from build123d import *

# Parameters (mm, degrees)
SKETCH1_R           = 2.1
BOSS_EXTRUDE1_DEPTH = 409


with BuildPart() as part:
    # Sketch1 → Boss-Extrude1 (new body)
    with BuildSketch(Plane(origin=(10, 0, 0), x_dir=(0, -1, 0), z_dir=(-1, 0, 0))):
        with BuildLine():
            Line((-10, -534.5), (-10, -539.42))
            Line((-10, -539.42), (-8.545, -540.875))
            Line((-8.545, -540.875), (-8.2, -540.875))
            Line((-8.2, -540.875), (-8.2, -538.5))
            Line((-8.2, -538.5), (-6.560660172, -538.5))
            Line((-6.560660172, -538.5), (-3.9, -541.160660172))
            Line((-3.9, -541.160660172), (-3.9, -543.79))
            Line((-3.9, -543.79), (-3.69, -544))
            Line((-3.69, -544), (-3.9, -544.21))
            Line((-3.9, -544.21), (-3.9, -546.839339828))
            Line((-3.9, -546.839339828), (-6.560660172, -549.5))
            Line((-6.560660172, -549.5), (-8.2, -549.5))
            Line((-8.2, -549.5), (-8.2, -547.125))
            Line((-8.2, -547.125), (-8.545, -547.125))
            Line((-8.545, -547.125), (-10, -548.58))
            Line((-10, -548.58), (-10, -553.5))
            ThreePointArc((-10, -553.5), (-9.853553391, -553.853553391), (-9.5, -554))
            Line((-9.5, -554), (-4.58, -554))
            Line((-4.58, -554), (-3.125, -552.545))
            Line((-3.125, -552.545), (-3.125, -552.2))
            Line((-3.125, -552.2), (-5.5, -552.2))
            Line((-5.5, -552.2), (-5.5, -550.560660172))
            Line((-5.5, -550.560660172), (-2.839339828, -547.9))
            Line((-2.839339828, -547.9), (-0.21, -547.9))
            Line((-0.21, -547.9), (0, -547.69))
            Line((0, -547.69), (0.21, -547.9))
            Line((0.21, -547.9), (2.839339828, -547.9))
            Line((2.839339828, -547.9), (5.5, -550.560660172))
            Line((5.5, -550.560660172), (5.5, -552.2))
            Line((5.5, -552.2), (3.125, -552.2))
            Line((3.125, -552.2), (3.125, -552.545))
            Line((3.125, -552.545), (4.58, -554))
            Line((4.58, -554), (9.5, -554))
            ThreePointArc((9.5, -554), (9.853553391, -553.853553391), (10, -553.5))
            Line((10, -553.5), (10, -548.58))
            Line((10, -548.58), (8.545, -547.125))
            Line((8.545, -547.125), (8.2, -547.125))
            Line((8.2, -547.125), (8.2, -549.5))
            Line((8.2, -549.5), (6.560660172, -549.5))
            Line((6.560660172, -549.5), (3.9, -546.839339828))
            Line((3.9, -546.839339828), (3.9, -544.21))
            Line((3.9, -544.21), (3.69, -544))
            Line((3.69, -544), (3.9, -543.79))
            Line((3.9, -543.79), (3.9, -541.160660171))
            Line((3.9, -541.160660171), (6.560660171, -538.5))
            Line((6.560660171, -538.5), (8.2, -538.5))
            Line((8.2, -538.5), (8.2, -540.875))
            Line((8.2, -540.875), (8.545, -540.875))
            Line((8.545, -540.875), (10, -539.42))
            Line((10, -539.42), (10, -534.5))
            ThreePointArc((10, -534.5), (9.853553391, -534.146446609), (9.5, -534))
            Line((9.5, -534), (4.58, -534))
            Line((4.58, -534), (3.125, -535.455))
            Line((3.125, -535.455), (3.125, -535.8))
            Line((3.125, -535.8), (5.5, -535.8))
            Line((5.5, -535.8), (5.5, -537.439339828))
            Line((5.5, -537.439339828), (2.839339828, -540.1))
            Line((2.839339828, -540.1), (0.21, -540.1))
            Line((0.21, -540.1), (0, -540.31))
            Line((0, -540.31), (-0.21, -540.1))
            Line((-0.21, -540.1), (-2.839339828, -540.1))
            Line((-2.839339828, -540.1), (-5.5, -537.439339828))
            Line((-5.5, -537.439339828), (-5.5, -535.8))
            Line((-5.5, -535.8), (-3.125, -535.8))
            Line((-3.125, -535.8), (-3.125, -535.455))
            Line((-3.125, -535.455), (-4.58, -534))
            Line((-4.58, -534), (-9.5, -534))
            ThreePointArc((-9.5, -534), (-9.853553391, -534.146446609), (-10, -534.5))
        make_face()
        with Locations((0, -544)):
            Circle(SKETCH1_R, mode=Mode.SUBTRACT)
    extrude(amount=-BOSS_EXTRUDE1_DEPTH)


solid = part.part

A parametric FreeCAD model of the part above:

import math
import FreeCAD as App
import Part
import Sketcher
from FreeCAD import Vector
Q = App.Units.Quantity

doc = App.newDocument("Part")
body = doc.addObject("PartDesign::Body", "Body")

# Sketch on YZ plane
sketch1 = body.newObject("Sketcher::SketchObject", "Sketch")
sketch1.AttachmentSupport = (doc.getObject("YZ_Plane"), [""])
sketch1.MapMode = "FlatFace"
sketch1.AttachmentOffset = App.Placement(Vector(0, 0, 10), App.Rotation())
sketch1.addGeometry([
    Part.LineSegment(Vector(10, -534.5, 0), Vector(10, -539.42, 0)),  # 0
    Part.LineSegment(Vector(10, -539.42, 0), Vector(8.545, -540.875, 0)),  # 1
    Part.LineSegment(Vector(8.545, -540.875, 0), Vector(8.2, -540.875, 0)),  # 2
    Part.LineSegment(Vector(8.2, -540.875, 0), Vector(8.2, -538.5, 0)),  # 3
    Part.LineSegment(Vector(8.2, -538.5, 0), Vector(6.56066, -538.5, 0)),  # 4
    Part.LineSegment(Vector(6.56066, -538.5, 0), Vector(3.9, -541.16066, 0)),  # 5
    Part.LineSegment(Vector(3.9, -541.16066, 0), Vector(3.9, -543.79, 0)),  # 6
    Part.LineSegment(Vector(3.9, -543.79, 0), Vector(3.69, -544, 0)),  # 7
    Part.LineSegment(Vector(3.69, -544, 0), Vector(3.9, -544.21, 0)),  # 8
    Part.LineSegment(Vector(3.9, -544.21, 0), Vector(3.9, -546.83934, 0)),  # 9
    Part.LineSegment(Vector(3.9, -546.83934, 0), Vector(6.56066, -549.5, 0)),  # 10
    Part.LineSegment(Vector(6.56066, -549.5, 0), Vector(8.2, -549.5, 0)),  # 11
    Part.LineSegment(Vector(8.2, -549.5, 0), Vector(8.2, -547.125, 0)),  # 12
    Part.LineSegment(Vector(8.2, -547.125, 0), Vector(8.545, -547.125, 0)),  # 13
    Part.LineSegment(Vector(8.545, -547.125, 0), Vector(10, -548.58, 0)),  # 14
    Part.LineSegment(Vector(10, -548.58, 0), Vector(10, -553.5, 0)),  # 15
    Part.ArcOfCircle(Part.Circle(Vector(9.5, -553.5, 0), Vector(0, 0, 1), 0.5), math.radians(-90), math.radians(0)),  # 16
    Part.LineSegment(Vector(9.5, -554, 0), Vector(4.58, -554, 0)),  # 17
    Part.LineSegment(Vector(4.58, -554, 0), Vector(3.125, -552.545, 0)),  # 18
    Part.LineSegment(Vector(3.125, -552.545, 0), Vector(3.125, -552.2, 0)),  # 19
    Part.LineSegment(Vector(3.125, -552.2, 0), Vector(5.5, -552.2, 0)),  # 20
    Part.LineSegment(Vector(5.5, -552.2, 0), Vector(5.5, -550.56066, 0)),  # 21
    Part.LineSegment(Vector(5.5, -550.56066, 0), Vector(2.83934, -547.9, 0)),  # 22
    Part.LineSegment(Vector(2.83934, -547.9, 0), Vector(0.21, -547.9, 0)),  # 23
    Part.LineSegment(Vector(0.21, -547.9, 0), Vector(0, -547.69, 0)),  # 24
    Part.LineSegment(Vector(0, -547.69, 0), Vector(-0.21, -547.9, 0)),  # 25
    Part.LineSegment(Vector(-0.21, -547.9, 0), Vector(-2.83934, -547.9, 0)),  # 26
    Part.LineSegment(Vector(-2.83934, -547.9, 0), Vector(-5.5, -550.56066, 0)),  # 27
    Part.LineSegment(Vector(-5.5, -550.56066, 0), Vector(-5.5, -552.2, 0)),  # 28
    Part.LineSegment(Vector(-5.5, -552.2, 0), Vector(-3.125, -552.2, 0)),  # 29
    Part.LineSegment(Vector(-3.125, -552.2, 0), Vector(-3.125, -552.545, 0)),  # 30
    Part.LineSegment(Vector(-3.125, -552.545, 0), Vector(-4.58, -554, 0)),  # 31
    Part.LineSegment(Vector(-4.58, -554, 0), Vector(-9.5, -554, 0)),  # 32
    Part.ArcOfCircle(Part.Circle(Vector(-9.5, -553.5, 0), Vector(0, 0, 1), 0.5), math.radians(180), math.radians(270)),  # 33
    Part.LineSegment(Vector(-10, -553.5, 0), Vector(-10, -548.58, 0)),  # 34
    Part.LineSegment(Vector(-10, -548.58, 0), Vector(-8.545, -547.125, 0)),  # 35
    Part.LineSegment(Vector(-8.545, -547.125, 0), Vector(-8.2, -547.125, 0)),  # 36
    Part.LineSegment(Vector(-8.2, -547.125, 0), Vector(-8.2, -549.5, 0)),  # 37
    Part.LineSegment(Vector(-8.2, -549.5, 0), Vector(-6.56066, -549.5, 0)),  # 38
    Part.LineSegment(Vector(-6.56066, -549.5, 0), Vector(-3.9, -546.83934, 0)),  # 39
    Part.LineSegment(Vector(-3.9, -546.83934, 0), Vector(-3.9, -544.21, 0)),  # 40
    Part.LineSegment(Vector(-3.9, -544.21, 0), Vector(-3.69, -544, 0)),  # 41
    Part.LineSegment(Vector(-3.69, -544, 0), Vector(-3.9, -543.79, 0)),  # 42
    Part.LineSegment(Vector(-3.9, -543.79, 0), Vector(-3.9, -541.16066, 0)),  # 43
    Part.LineSegment(Vector(-3.9, -541.16066, 0), Vector(-6.56066, -538.5, 0)),  # 44
    Part.LineSegment(Vector(-6.56066, -538.5, 0), Vector(-8.2, -538.5, 0)),  # 45
    Part.LineSegment(Vector(-8.2, -538.5, 0), Vector(-8.2, -540.875, 0)),  # 46
    Part.LineSegment(Vector(-8.2, -540.875, 0), Vector(-8.545, -540.875, 0)),  # 47
    Part.LineSegment(Vector(-8.545, -540.875, 0), Vector(-10, -539.42, 0)),  # 48
    Part.LineSegment(Vector(-10, -539.42, 0), Vector(-10, -534.5, 0)),  # 49
    Part.ArcOfCircle(Part.Circle(Vector(-9.5, -534.5, 0), Vector(0, 0, 1), 0.5), math.radians(90), math.radians(180)),  # 50
    Part.LineSegment(Vector(-9.5, -534, 0), Vector(-4.58, -534, 0)),  # 51
    Part.LineSegment(Vector(-4.58, -534, 0), Vector(-3.125, -535.455, 0)),  # 52
    Part.LineSegment(Vector(-3.125, -535.455, 0), Vector(-3.125, -535.8, 0)),  # 53
    Part.LineSegment(Vector(-3.125, -535.8, 0), Vector(-5.5, -535.8, 0)),  # 54
    Part.LineSegment(Vector(-5.5, -535.8, 0), Vector(-5.5, -537.43934, 0)),  # 55
    Part.LineSegment(Vector(-5.5, -537.43934, 0), Vector(-2.83934, -540.1, 0)),  # 56
    Part.LineSegment(Vector(-2.83934, -540.1, 0), Vector(-0.21, -540.1, 0)),  # 57
    Part.LineSegment(Vector(-0.21, -540.1, 0), Vector(0, -540.31, 0)),  # 58
    Part.LineSegment(Vector(0, -540.31, 0), Vector(0.21, -540.1, 0)),  # 59
    Part.LineSegment(Vector(0.21, -540.1, 0), Vector(2.83934, -540.1, 0)),  # 60
    Part.LineSegment(Vector(2.83934, -540.1, 0), Vector(5.5, -537.43934, 0)),  # 61
    Part.LineSegment(Vector(5.5, -537.43934, 0), Vector(5.5, -535.8, 0)),  # 62
    Part.LineSegment(Vector(5.5, -535.8, 0), Vector(3.125, -535.8, 0)),  # 63
    Part.LineSegment(Vector(3.125, -535.8, 0), Vector(3.125, -535.455, 0)),  # 64
    Part.LineSegment(Vector(3.125, -535.455, 0), Vector(4.58, -534, 0)),  # 65
    Part.LineSegment(Vector(4.58, -534, 0), Vector(9.5, -534, 0)),  # 66
    Part.ArcOfCircle(Part.Circle(Vector(9.5, -534.5, 0), Vector(0, 0, 1), 0.5), math.radians(0), math.radians(90)),  # 67
    Part.Circle(Vector(0, -544, 0), Vector(0, 0, 1), 2.1),  # 68
], False)
sketch1.addConstraint([
    Sketcher.Constraint("Coincident", 0, 2, 1, 1),
    Sketcher.Constraint("Coincident", 1, 2, 2, 1),
    Sketcher.Constraint("Coincident", 2, 2, 3, 1),
    Sketcher.Constraint("Coincident", 3, 2, 4, 1),
    Sketcher.Constraint("Coincident", 4, 2, 5, 1),
    Sketcher.Constraint("Coincident", 5, 2, 6, 1),
    Sketcher.Constraint("Coincident", 6, 2, 7, 1),
    Sketcher.Constraint("Coincident", 7, 2, 8, 1),
    Sketcher.Constraint("Coincident", 8, 2, 9, 1),
    Sketcher.Constraint("Coincident", 9, 2, 10, 1),
    Sketcher.Constraint("Coincident", 10, 2, 11, 1),
    Sketcher.Constraint("Coincident", 11, 2, 12, 1),
    Sketcher.Constraint("Coincident", 12, 2, 13, 1),
    Sketcher.Constraint("Coincident", 13, 2, 14, 1),
    Sketcher.Constraint("Coincident", 14, 2, 15, 1),
    Sketcher.Constraint("Tangent", 15, 2, 16, 2),
    Sketcher.Constraint("Tangent", 16, 1, 17, 1),
    Sketcher.Constraint("Coincident", 17, 2, 18, 1),
    Sketcher.Constraint("Coincident", 18, 2, 19, 1),
    Sketcher.Constraint("Coincident", 19, 2, 20, 1),
    Sketcher.Constraint("Coincident", 20, 2, 21, 1),
    Sketcher.Constraint("Coincident", 21, 2, 22, 1),
    Sketcher.Constraint("Coincident", 22, 2, 23, 1),
    Sketcher.Constraint("Coincident", 23, 2, 24, 1),
    Sketcher.Constraint("Coincident", 24, 2, 25, 1),
    Sketcher.Constraint("Coincident", 25, 2, 26, 1),
    Sketcher.Constraint("Coincident", 26, 2, 27, 1),
    Sketcher.Constraint("Coincident", 27, 2, 28, 1),
    Sketcher.Constraint("Coincident", 28, 2, 29, 1),
    Sketcher.Constraint("Coincident", 29, 2, 30, 1),
    Sketcher.Constraint("Coincident", 30, 2, 31, 1),
    Sketcher.Constraint("Coincident", 31, 2, 32, 1),
    Sketcher.Constraint("Tangent", 32, 2, 33, 2),
    Sketcher.Constraint("Tangent", 33, 1, 34, 1),
    Sketcher.Constraint("Coincident", 34, 2, 35, 1),
    Sketcher.Constraint("Coincident", 35, 2, 36, 1),
    Sketcher.Constraint("Coincident", 36, 2, 37, 1),
    Sketcher.Constraint("Coincident", 37, 2, 38, 1),
    Sketcher.Constraint("Coincident", 38, 2, 39, 1),
    Sketcher.Constraint("Coincident", 39, 2, 40, 1),
    Sketcher.Constraint("Coincident", 40, 2, 41, 1),
    Sketcher.Constraint("Coincident", 41, 2, 42, 1),
    Sketcher.Constraint("Coincident", 42, 2, 43, 1),
    Sketcher.Constraint("Coincident", 43, 2, 44, 1),
    Sketcher.Constraint("Coincident", 44, 2, 45, 1),
    Sketcher.Constraint("Coincident", 45, 2, 46, 1),
    Sketcher.Constraint("Coincident", 46, 2, 47, 1),
    Sketcher.Constraint("Coincident", 47, 2, 48, 1),
    Sketcher.Constraint("Coincident", 48, 2, 49, 1),
    Sketcher.Constraint("Tangent", 49, 2, 50, 2),
    Sketcher.Constraint("Tangent", 50, 1, 51, 1),
    Sketcher.Constraint("Coincident", 51, 2, 52, 1),
    Sketcher.Constraint("Coincident", 52, 2, 53, 1),
    Sketcher.Constraint("Coincident", 53, 2, 54, 1),
    Sketcher.Constraint("Coincident", 54, 2, 55, 1),
    Sketcher.Constraint("Coincident", 55, 2, 56, 1),
    Sketcher.Constraint("Coincident", 56, 2, 57, 1),
    Sketcher.Constraint("Coincident", 57, 2, 58, 1),
    Sketcher.Constraint("Coincident", 58, 2, 59, 1),
    Sketcher.Constraint("Coincident", 59, 2, 60, 1),
    Sketcher.Constraint("Coincident", 60, 2, 61, 1),
    Sketcher.Constraint("Coincident", 61, 2, 62, 1),
    Sketcher.Constraint("Coincident", 62, 2, 63, 1),
    Sketcher.Constraint("Coincident", 63, 2, 64, 1),
    Sketcher.Constraint("Coincident", 64, 2, 65, 1),
    Sketcher.Constraint("Coincident", 65, 2, 66, 1),
    Sketcher.Constraint("Tangent", 66, 2, 67, 2),
    Sketcher.Constraint("Tangent", 67, 1, 0, 1),
    Sketcher.Constraint("Vertical", 0),
    Sketcher.Constraint("Horizontal", 2),
    Sketcher.Constraint("Vertical", 3),
    Sketcher.Constraint("Horizontal", 4),
    Sketcher.Constraint("Vertical", 6),
    Sketcher.Constraint("Vertical", 9),
    Sketcher.Constraint("Horizontal", 11),
    Sketcher.Constraint("Vertical", 12),
    Sketcher.Constraint("Horizontal", 13),
    Sketcher.Constraint("Vertical", 15),
    Sketcher.Constraint("Horizontal", 17),
    Sketcher.Constraint("Vertical", 19),
    Sketcher.Constraint("Horizontal", 20),
    Sketcher.Constraint("Vertical", 21),
    Sketcher.Constraint("Horizontal", 23),
    Sketcher.Constraint("Horizontal", 26),
    Sketcher.Constraint("Vertical", 28),
    Sketcher.Constraint("Horizontal", 29),
    Sketcher.Constraint("Vertical", 30),
    Sketcher.Constraint("Horizontal", 32),
    Sketcher.Constraint("Vertical", 34),
    Sketcher.Constraint("Horizontal", 36),
    Sketcher.Constraint("Vertical", 37),
    Sketcher.Constraint("Horizontal", 38),
    Sketcher.Constraint("Vertical", 40),
    Sketcher.Constraint("Vertical", 43),
    Sketcher.Constraint("Horizontal", 45),
    Sketcher.Constraint("Vertical", 46),
    Sketcher.Constraint("Horizontal", 47),
    Sketcher.Constraint("Vertical", 49),
    Sketcher.Constraint("Horizontal", 51),
    Sketcher.Constraint("Vertical", 53),
    Sketcher.Constraint("Horizontal", 54),
    Sketcher.Constraint("Vertical", 55),
    Sketcher.Constraint("Horizontal", 57),
    Sketcher.Constraint("Horizontal", 60),
    Sketcher.Constraint("Vertical", 62),
    Sketcher.Constraint("Horizontal", 63),
    Sketcher.Constraint("Vertical", 64),
    Sketcher.Constraint("Horizontal", 66),
    Sketcher.Constraint("Equal", 16, 33),
    Sketcher.Constraint("Equal", 33, 50),
    Sketcher.Constraint("Equal", 50, 67),
    Sketcher.Constraint("Symmetric", 16, 3, 33, 3, -2),
    Sketcher.Constraint("Symmetric", 50, 3, 67, 3, -2),
    Sketcher.Constraint("Symmetric", 23, 2, 25, 2, -2),
    Sketcher.Constraint("Symmetric", 21, 2, 27, 2, -2),
    Sketcher.Constraint("Symmetric", 19, 2, 29, 2, -2),
    Sketcher.Constraint("Symmetric", 13, 2, 35, 2, -2),
    Sketcher.Constraint("Symmetric", 11, 2, 37, 2, -2),
    Sketcher.Constraint("Symmetric", 9, 2, 39, 2, -2),
    Sketcher.Constraint("Symmetric", 7, 2, 41, 2, -2),
    Sketcher.Constraint("Symmetric", 6, 2, 42, 2, -2),
    Sketcher.Constraint("Symmetric", 4, 2, 44, 2, -2),
    Sketcher.Constraint("Symmetric", 2, 2, 46, 2, -2),
    Sketcher.Constraint("Symmetric", 57, 2, 59, 2, -2),
    Sketcher.Constraint("Symmetric", 55, 2, 61, 2, -2),
    Sketcher.Constraint("Symmetric", 53, 2, 63, 2, -2),
    Sketcher.Constraint("PointOnObject", 68, 3, -2),
    Sketcher.Constraint("PointOnObject", 24, 2, -2),
    Sketcher.Constraint("PointOnObject", 58, 2, -2),
    Sketcher.Constraint("Parallel", 1, 5),
    Sketcher.Constraint("Parallel", 5, 7),
    Sketcher.Constraint("Perpendicular", 7, 8),
    Sketcher.Constraint("Parallel", 8, 10),
    Sketcher.Constraint("Parallel", 10, 14),
    Sketcher.Constraint("Parallel", 14, 18),
    Sketcher.Constraint("Parallel", 18, 22),
    Sketcher.Constraint("Parallel", 22, 24),
    Sketcher.Constraint("Perpendicular", 24, 25),
    Sketcher.Constraint("Parallel", 25, 27),
    Sketcher.Constraint("Parallel", 27, 31),
    Sketcher.Constraint("Parallel", 31, 35),
    Sketcher.Constraint("Parallel", 35, 39),
    Sketcher.Constraint("Parallel", 39, 41),
    Sketcher.Constraint("Parallel", 42, 44),
    Sketcher.Constraint("Parallel", 44, 48),
    Sketcher.Constraint("Parallel", 48, 52),
    Sketcher.Constraint("Parallel", 52, 56),
    Sketcher.Constraint("Parallel", 56, 58),
    Sketcher.Constraint("Parallel", 59, 61),
    Sketcher.Constraint("Parallel", 61, 65),
    Sketcher.Constraint("Horizontal", 68, 3, 7, 2),
    Sketcher.Constraint("Horizontal", 18, 2, 30, 2),
    Sketcher.Constraint("Horizontal", 0, 2, 48, 2),
    Sketcher.Constraint("Horizontal", 52, 2, 64, 2),
    Sketcher.Constraint("Vertical", 33, 3, 50, 3),
    Sketcher.Constraint("Vertical", 6, 2, 8, 2),
    Sketcher.Constraint("Vertical", 4, 2, 10, 2),
    Sketcher.Constraint("Vertical", 3, 2, 11, 2),
    Sketcher.Constraint("Vertical", 1, 2, 13, 2),
    Sketcher.Constraint("Vertical", 31, 2, 51, 2),
    Sketcher.Constraint("Vertical", 30, 2, 52, 2),
    Sketcher.Constraint("Vertical", 28, 2, 54, 2),
    Sketcher.Constraint("Vertical", 26, 2, 56, 2),
    Sketcher.Constraint("Vertical", 25, 2, 57, 2),
    Sketcher.Constraint("Equal", 66, 0),
    Sketcher.Constraint("Equal", 63, 3),
    Sketcher.Constraint("Equal", 60, 6),
    Sketcher.Constraint("Equal", 6, 9),
    Sketcher.Constraint("Equal", 3, 12),
    Sketcher.Constraint("Equal", 0, 15),
    Sketcher.Constraint("Equal", 47, 19),
    Sketcher.Constraint("Equal", 45, 21),
    Sketcher.Constraint("Equal", 30, 53),
    Sketcher.Constraint("Equal", 28, 55),
    Sketcher.Constraint("Equal", 14, 18),
    Sketcher.Constraint("Equal", 10, 22),
    Sketcher.Constraint("Equal", 8, 24),
    Sketcher.Constraint("Diameter", 68, Q("4.2 mm")),
    Sketcher.Constraint("Radius", 16, Q("0.5 mm")),
    Sketcher.Constraint("DistanceY", 68, 3, -1, 1, Q("544 mm")),
    Sketcher.Constraint("DistanceX", -1, 1, 0, 2, Q("10 mm")),
    Sketcher.Constraint("DistanceX", 17, 2, 17, 1, Q("4.92 mm")),
    Sketcher.Constraint("DistanceX", -1, 1, 2, 2, Q("8.2 mm")),
    Sketcher.Constraint("DistanceY", 3, 2, -1, 1, Q("538.5 mm")),
    Sketcher.Constraint("DistanceX", -1, 1, 5, 2, Q("3.9 mm")),
    Sketcher.Constraint("DistanceX", 2, 2, 2, 1, Q("0.345 mm")),
    Sketcher.Constraint("DistanceY", 6, 2, -1, 1, Q("543.79 mm")),
    Sketcher.Constraint("DistanceX", 4, 2, 4, 1, Q("1.63934 mm")),
])
pad1 = body.newObject("PartDesign::Pad", "Pad")
pad1.Profile = sketch1
pad1.Length = 409

doc.recompute()
